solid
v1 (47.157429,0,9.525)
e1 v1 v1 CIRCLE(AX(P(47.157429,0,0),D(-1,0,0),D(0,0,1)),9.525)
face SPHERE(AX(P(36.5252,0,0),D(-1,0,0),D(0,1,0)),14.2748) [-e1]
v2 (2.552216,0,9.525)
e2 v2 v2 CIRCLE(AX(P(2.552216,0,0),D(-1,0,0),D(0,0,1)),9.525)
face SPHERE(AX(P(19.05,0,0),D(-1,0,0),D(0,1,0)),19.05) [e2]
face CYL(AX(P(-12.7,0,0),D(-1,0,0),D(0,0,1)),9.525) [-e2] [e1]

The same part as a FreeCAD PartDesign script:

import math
import FreeCAD as App
import Part
import Sketcher
Q = App.Units.Quantity

doc = App.newDocument("Part")
body = doc.addObject("PartDesign::Body", "Body")

# Sketch on XY plane
sketch1 = doc.addObject("Sketcher::SketchObject", "Sketch")
body.addObject(sketch1)
sketch1.AttachmentSupport = (doc.XY_Plane, [""])
sketch1.MapMode = "FlatFace"
sketch1.addGeometry([
    Part.LineSegment(App.Vector(47.157429, 9.525, 0), App.Vector(2.552216, 9.525, 0)),
    Part.ArcOfCircle(Part.Circle(App.Vector(19.05, 0, 0), App.Vector(0, 0, 1), 19.05), math.radians(150), math.radians(180)),
    Part.LineSegment(App.Vector(0, 0, 0), App.Vector(50.8, 0, 0)),
    Part.ArcOfCircle(Part.Circle(App.Vector(36.5252, 0, 0), App.Vector(0, 0, 1), 14.2748), math.radians(0), math.radians(41.855924)),
], False)
sketch1.addConstraint([
    Sketcher.Constraint("Coincident", 0, 2, 1, 1),
    Sketcher.Constraint("Coincident", 1, 2, 2, 1),
    Sketcher.Constraint("Coincident", 2, 2, 3, 1),
    Sketcher.Constraint("Coincident", 3, 2, 0, 1),
    Sketcher.Constraint("Horizontal", 0),
    Sketcher.Constraint("Horizontal", 2),
    Sketcher.Constraint("Coincident", 1, 2, -1, 1),
    Sketcher.Constraint("PointOnObject", 1, 3, -1),
    Sketcher.Constraint("PointOnObject", 3, 3, -1),
    Sketcher.Constraint("DistanceX", 2, 1, 2, 2, Q("2 in")),
    Sketcher.Constraint("Radius", 1, Q("0.75 in")),
    Sketcher.Constraint("Radius", 3, Q("0.562 in")),
    Sketcher.Constraint("DistanceY", -1, 1, 0, 2, Q("0.375 in")),
])
revolution = doc.addObject("PartDesign::Revolution", "Revolution")
body.addObject(revolution)
revolution.Profile = sketch1
revolution.ReferenceAxis = (sketch1, ["H_Axis"])
revolution.Angle = 360

doc.recompute()
